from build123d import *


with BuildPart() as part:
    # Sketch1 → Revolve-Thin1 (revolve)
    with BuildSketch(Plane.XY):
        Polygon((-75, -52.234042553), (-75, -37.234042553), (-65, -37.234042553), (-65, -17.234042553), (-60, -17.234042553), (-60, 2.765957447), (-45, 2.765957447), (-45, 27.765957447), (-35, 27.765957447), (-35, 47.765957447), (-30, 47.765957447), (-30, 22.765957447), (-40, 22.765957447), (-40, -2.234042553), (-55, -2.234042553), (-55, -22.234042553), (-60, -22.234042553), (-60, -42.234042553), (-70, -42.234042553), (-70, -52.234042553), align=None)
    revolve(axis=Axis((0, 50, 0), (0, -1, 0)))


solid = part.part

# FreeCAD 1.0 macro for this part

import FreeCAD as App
import Part
import Sketcher

V = App.Vector
Q = App.Units.Quantity

doc = App.newDocument("Part")
body = doc.addObject("PartDesign::Body", "Body")

sketch1 = body.newObject("Sketcher::SketchObject", "Sketch")
sketch1.AttachmentSupport = (doc.getObject("XY_Plane"), [""])
sketch1.MapMode = "FlatFace"
sketch1.addGeometry([
    Part.LineSegment(V(-75, -37.234043, 0), V(-75, -52.234043, 0)),
    Part.LineSegment(V(-75, -52.234043, 0), V(-70, -52.234043, 0)),
    Part.LineSegment(V(-70, -52.234043, 0), V(-70, -42.234043, 0)),
    Part.LineSegment(V(-70, -42.234043, 0), V(-60, -42.234043, 0)),
    Part.LineSegment(V(-60, -42.234043, 0), V(-60, -22.234043, 0)),
    Part.LineSegment(V(-60, -22.234043, 0), V(-55, -22.234043, 0)),
    Part.LineSegment(V(-55, -22.234043, 0), V(-55, -2.234043, 0)),
    Part.LineSegment(V(-55, -2.234043, 0), V(-40, -2.234043, 0)),
    Part.LineSegment(V(-40, -2.234043, 0), V(-40, 22.765957, 0)),
    Part.LineSegment(V(-40, 22.765957, 0), V(-30, 22.765957, 0)),
    Part.LineSegment(V(-30, 22.765957, 0), V(-30, 47.765957, 0)),
    Part.LineSegment(V(-30, 47.765957, 0), V(-35, 47.765957, 0)),
    Part.LineSegment(V(-35, 47.765957, 0), V(-35, 27.765957, 0)),
    Part.LineSegment(V(-35, 27.765957, 0), V(-45, 27.765957, 0)),
    Part.LineSegment(V(-45, 27.765957, 0), V(-45, 2.765957, 0)),
    Part.LineSegment(V(-45, 2.765957, 0), V(-60, 2.765957, 0)),
    Part.LineSegment(V(-60, 2.765957, 0), V(-60, -17.234043, 0)),
    Part.LineSegment(V(-60, -17.234043, 0), V(-65, -17.234043, 0)),
    Part.LineSegment(V(-65, -17.234043, 0), V(-65, -37.234043, 0)),
    Part.LineSegment(V(-65, -37.234043, 0), V(-75, -37.234043, 0)),
], False)
sketch1.addConstraint([
    Sketcher.Constraint("Coincident", 0, 2, 1, 1),
    Sketcher.Constraint("Coincident", 1, 2, 2, 1),
    Sketcher.Constraint("Coincident", 2, 2, 3, 1),
    Sketcher.Constraint("Coincident", 3, 2, 4, 1),
    Sketcher.Constraint("Coincident", 4, 2, 5, 1),
    Sketcher.Constraint("Coincident", 5, 2, 6, 1),
    Sketcher.Constraint("Coincident", 6, 2, 7, 1),
    Sketcher.Constraint("Coincident", 7, 2, 8, 1),
    Sketcher.Constraint("Coincident", 8, 2, 9, 1),
    Sketcher.Constraint("Coincident", 9, 2, 10, 1),
    Sketcher.Constraint("Coincident", 10, 2, 11, 1),
    Sketcher.Constraint("Coincident", 11, 2, 12, 1),
    Sketcher.Constraint("Coincident", 12, 2, 13, 1),
    Sketcher.Constraint("Coincident", 13, 2, 14, 1),
    Sketcher.Constraint("Coincident", 14, 2, 15, 1),
    Sketcher.Constraint("Coincident", 15, 2, 16, 1),
    Sketcher.Constraint("Coincident", 16, 2, 17, 1),
    Sketcher.Constraint("Coincident", 17, 2, 18, 1),
    Sketcher.Constraint("Coincident", 18, 2, 19, 1),
    Sketcher.Constraint("Coincident", 19, 2, 0, 1),
    Sketcher.Constraint("Vertical", 0),
    Sketcher.Constraint("Horizontal", 1),
    Sketcher.Constraint("Vertical", 2),
    Sketcher.Constraint("Horizontal", 3),
    Sketcher.Constraint("Vertical", 4),
    Sketcher.Constraint("Horizontal", 5),
    Sketcher.Constraint("Vertical", 6),
    Sketcher.Constraint("Horizontal", 7),
    Sketcher.Constraint("Vertical", 8),
    Sketcher.Constraint("Horizontal", 9),
    Sketcher.Constraint("Vertical", 10),
    Sketcher.Constraint("Horizontal", 11),
    Sketcher.Constraint("Vertical", 12),
    Sketcher.Constraint("Horizontal", 13),
    Sketcher.Constraint("Vertical", 14),
    Sketcher.Constraint("Horizontal", 15),
    Sketcher.Constraint("Vertical", 16),
    Sketcher.Constraint("Horizontal", 17),
    Sketcher.Constraint("Vertical", 18),
    Sketcher.Constraint("Horizontal", 19),
    Sketcher.Constraint("Vertical", 4, 2, 15, 2),
    Sketcher.Constraint("Equal", 1, 5),
    Sketcher.Constraint("Equal", 3, 9),
    Sketcher.Constraint("Equal", 5, 11),
    Sketcher.Constraint("Equal", 9, 13),
    Sketcher.Constraint("Equal", 11, 17),
    Sketcher.Constraint("Equal", 15, 0),
    Sketcher.Constraint("Equal", 19, 2),
    Sketcher.Constraint("Equal", 4, 6),
    Sketcher.Constraint("Equal", 8, 10),
    Sketcher.Constraint("Equal", 6, 12),
    Sketcher.Constraint("Equal", 10, 14),
    Sketcher.Constraint("Equal", 12, 16),
    Sketcher.Constraint("Equal", 16, 18),
    Sketcher.Constraint("DistanceX", 1, 1, 1, 2, Q("5 mm")),
    Sketcher.Constraint("DistanceX", 3, 1, 3, 2, Q("10 mm")),
    Sketcher.Constraint("DistanceX", 7, 1, 7, 2, Q("15 mm")),
    Sketcher.Constraint("DistanceY", 4, 1, 4, 2, Q("20 mm")),
    Sketcher.Constraint("DistanceX", 0, 2, -1, 1, Q("75 mm")),
    Sketcher.Constraint("DistanceY", 0, 2, -1, 1, Q("52.234043 mm")),
])
revolution = body.newObject("PartDesign::Revolution", "Revolution")
revolution.Profile = sketch1
revolution.ReferenceAxis = (sketch1, ["V_Axis"])
revolution.Angle = 360

doc.recompute()
